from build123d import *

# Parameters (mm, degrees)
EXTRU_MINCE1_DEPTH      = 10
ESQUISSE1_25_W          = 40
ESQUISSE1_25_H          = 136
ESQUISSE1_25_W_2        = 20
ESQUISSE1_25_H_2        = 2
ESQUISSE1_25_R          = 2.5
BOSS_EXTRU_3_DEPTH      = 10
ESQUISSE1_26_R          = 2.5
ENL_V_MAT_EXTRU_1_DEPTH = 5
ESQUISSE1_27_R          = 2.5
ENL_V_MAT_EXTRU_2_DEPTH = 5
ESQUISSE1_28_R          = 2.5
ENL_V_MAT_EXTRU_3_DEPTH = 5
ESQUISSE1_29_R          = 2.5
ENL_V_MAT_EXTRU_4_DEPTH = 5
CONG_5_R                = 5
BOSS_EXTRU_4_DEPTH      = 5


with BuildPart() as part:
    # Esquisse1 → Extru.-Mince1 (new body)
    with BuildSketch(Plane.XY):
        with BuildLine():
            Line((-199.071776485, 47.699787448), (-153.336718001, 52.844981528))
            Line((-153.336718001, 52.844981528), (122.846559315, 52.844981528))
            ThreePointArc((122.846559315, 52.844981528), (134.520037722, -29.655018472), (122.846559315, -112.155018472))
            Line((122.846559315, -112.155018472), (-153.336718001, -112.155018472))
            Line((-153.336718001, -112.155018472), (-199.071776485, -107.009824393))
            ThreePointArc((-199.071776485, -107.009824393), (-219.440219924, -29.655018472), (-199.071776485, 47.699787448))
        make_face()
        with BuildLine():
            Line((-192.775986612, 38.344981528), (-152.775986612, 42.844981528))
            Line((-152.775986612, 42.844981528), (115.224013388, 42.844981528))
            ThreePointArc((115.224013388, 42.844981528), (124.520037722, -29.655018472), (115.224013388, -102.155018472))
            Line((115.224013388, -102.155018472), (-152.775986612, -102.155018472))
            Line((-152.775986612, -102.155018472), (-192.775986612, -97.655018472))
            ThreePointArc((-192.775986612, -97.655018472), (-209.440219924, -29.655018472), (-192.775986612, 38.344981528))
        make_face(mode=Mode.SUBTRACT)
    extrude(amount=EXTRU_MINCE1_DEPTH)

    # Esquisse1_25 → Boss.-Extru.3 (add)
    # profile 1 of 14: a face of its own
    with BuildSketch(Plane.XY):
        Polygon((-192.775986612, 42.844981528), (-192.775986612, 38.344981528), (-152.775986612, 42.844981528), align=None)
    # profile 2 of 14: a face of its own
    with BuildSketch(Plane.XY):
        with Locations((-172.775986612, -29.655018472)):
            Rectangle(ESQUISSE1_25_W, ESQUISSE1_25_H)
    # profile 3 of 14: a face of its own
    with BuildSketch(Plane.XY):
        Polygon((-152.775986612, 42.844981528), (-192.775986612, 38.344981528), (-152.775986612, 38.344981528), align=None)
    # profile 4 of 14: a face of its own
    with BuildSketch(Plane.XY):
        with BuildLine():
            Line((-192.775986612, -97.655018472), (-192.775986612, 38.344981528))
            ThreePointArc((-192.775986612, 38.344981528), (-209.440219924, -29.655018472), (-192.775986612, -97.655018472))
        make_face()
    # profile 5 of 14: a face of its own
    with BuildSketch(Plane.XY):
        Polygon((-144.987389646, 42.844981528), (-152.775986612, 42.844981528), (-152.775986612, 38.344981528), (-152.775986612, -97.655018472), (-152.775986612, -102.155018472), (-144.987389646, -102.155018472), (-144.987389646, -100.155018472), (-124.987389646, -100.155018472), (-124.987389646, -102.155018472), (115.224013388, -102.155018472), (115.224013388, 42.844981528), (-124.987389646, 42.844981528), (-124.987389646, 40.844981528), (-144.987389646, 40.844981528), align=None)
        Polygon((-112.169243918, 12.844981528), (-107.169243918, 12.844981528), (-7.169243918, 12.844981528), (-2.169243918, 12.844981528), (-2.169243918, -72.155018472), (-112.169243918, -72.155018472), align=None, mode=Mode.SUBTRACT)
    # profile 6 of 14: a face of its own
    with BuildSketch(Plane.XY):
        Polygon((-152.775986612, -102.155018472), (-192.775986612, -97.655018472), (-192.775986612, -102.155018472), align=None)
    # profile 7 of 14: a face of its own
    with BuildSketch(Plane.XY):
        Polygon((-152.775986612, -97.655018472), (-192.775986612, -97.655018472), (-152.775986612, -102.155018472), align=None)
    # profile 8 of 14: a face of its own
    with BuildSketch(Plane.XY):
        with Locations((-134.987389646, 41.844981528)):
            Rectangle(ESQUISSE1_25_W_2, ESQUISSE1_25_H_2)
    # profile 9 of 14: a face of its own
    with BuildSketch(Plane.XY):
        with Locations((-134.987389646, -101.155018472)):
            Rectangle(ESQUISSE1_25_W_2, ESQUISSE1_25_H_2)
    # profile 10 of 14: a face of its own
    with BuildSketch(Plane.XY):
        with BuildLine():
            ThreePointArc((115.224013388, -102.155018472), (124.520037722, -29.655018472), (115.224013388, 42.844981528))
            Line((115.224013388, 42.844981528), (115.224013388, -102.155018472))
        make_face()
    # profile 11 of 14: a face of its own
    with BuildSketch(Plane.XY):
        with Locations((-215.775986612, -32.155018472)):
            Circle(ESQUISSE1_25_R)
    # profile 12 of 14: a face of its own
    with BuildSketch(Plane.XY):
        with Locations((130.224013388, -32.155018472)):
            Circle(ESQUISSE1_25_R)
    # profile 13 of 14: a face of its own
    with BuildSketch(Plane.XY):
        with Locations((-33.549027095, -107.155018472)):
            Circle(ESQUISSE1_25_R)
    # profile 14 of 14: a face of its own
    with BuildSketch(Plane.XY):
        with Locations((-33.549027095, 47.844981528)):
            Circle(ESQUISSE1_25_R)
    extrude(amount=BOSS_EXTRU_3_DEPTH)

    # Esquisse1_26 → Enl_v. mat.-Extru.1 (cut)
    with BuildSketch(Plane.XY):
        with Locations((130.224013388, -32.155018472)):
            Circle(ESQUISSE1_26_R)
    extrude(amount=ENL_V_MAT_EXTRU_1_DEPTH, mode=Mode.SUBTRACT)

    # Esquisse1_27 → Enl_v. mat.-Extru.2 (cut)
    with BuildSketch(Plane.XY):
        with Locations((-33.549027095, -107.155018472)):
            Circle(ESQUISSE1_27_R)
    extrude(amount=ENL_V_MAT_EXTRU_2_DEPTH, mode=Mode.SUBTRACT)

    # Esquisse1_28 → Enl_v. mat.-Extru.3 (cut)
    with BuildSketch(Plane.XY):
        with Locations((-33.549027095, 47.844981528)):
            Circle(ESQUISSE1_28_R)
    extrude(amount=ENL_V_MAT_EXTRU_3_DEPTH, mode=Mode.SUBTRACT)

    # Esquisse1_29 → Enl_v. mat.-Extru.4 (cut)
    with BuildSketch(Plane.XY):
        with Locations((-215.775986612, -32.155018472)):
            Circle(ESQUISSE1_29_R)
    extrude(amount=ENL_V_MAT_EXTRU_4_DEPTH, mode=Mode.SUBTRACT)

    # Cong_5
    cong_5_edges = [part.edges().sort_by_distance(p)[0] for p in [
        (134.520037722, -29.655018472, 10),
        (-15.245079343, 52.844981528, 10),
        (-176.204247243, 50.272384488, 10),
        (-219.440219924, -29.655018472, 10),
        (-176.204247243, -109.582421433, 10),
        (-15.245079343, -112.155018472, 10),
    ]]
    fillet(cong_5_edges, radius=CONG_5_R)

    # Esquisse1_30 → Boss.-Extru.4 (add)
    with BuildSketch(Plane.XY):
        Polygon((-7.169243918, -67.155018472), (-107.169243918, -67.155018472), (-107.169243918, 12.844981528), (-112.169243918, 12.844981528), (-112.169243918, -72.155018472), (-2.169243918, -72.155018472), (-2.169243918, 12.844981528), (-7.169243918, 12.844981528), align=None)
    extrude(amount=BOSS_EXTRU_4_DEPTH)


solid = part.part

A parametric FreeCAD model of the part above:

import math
import FreeCAD as App
import Part
import Sketcher


def edges_at(feature, points):
    """Names of the edges that pass closest to the given points."""
    edges = feature.Shape.Edges
    near = lambda p: min(range(len(edges)), key=lambda i: edges[i].distToShape(Part.Vertex(*p))[0])
    return sorted({f"Edge{near(p) + 1}" for p in points})


def add_polygon(sketch, points):
    """Adds a closed chain of lines whose ends are joined by coincident constraints."""
    first, n = sketch.GeometryCount, len(points)
    for a, b in zip(points, points[1:] + points[:1]):
        sketch.addGeometry(Part.LineSegment(App.Vector(*a, 0), App.Vector(*b, 0)), False)
    for i in range(n):
        sketch.addConstraint(Sketcher.Constraint("Coincident", first + i, 2, first + (i + 1) % n, 1))

doc = App.newDocument("Part")
params = doc.addObject("Spreadsheet::Sheet", "Params")
for row, (alias, value) in enumerate([
    ("sketch1_width", "268 mm"),
    ("pad1_length", "10 mm"),
    ("sketch2_diameter", "5 mm"),
    ("sketch2_width", "308 mm"),
    ("sketch2_width2", "110 mm"),
    ("sketch2_height", "85 mm"),
    ("sketch2_height2", "4.5 mm"),
    ("pad2_length", "10 mm"),
    ("sketch3_diameter", "5 mm"),
    ("pocket1_length", "5 mm"),
    ("sketch4_diameter", "5 mm"),
    ("pocket2_length", "5 mm"),
    ("sketch5_diameter", "5 mm"),
    ("pocket3_length", "5 mm"),
    ("sketch6_diameter", "5 mm"),
    ("pocket4_length", "5 mm"),
    ("fillet_radius", "5 mm"),
    ("sketch7_width", "100 mm"),
    ("sketch7_width2", "5 mm"),
    ("sketch7_height", "80 mm"),
    ("sketch7_height2", "85 mm"),
    ("pad3_length", "5 mm"),
], start=1):
    params.set(f"A{row}", alias)
    params.set(f"B{row}", "=" + value)
    params.setAlias(f"B{row}", alias)

body = doc.addObject("PartDesign::Body", "Body")

sketch1 = body.newObject("Sketcher::SketchObject", "Sketch")
sketch1.AttachmentSupport = (doc.getObject("XY_Plane"), [""])
sketch1.MapMode = "FlatFace"
sketch1.addGeometry(Part.LineSegment(App.Vector(-153, 53, 0), App.Vector(-199, 48, 0)), False)
sketch1.addGeometry(Part.ArcOfCircle(Part.Circle(App.Vector(-62, -30, 0), App.Vector(0, 0, 1), 157), math.radians(150), math.radians(210)), False)
sketch1.addGeometry(Part.LineSegment(App.Vector(-199, -107, 0), App.Vector(-153, -112, 0)), False)
sketch1.addGeometry(Part.LineSegment(App.Vector(-153, -112, 0), App.Vector(123, -112, 0)), False)
sketch1.addGeometry(Part.ArcOfCircle(Part.Circle(App.Vector(-163, -30, 0), App.Vector(0, 0, 1), 297), math.radians(-16), math.radians(16)), False)
sketch1.addGeometry(Part.LineSegment(App.Vector(123, 53, 0), App.Vector(-153, 53, 0)), False)
sketch1.addGeometry(Part.LineSegment(App.Vector(-193, 38, 0), App.Vector(-153, 43, 0)), False)
sketch1.addGeometry(Part.LineSegment(App.Vector(-153, 43, 0), App.Vector(115, 43, 0)), False)
sketch1.addGeometry(Part.ArcOfCircle(Part.Circle(App.Vector(-163, -30, 0), App.Vector(0, 0, 1), 287), math.radians(-15), math.radians(15)), False)
sketch1.addGeometry(Part.LineSegment(App.Vector(115, -102, 0), App.Vector(-153, -102, 0)), False)
sketch1.addGeometry(Part.LineSegment(App.Vector(-153, -102, 0), App.Vector(-193, -98, 0)), False)
sketch1.addGeometry(Part.ArcOfCircle(Part.Circle(App.Vector(-62, -30, 0), App.Vector(0, 0, 1), 147), math.radians(152), math.radians(208)), False)
sketch1.addConstraint(Sketcher.Constraint("Coincident", 0, 2, 1, 1))
sketch1.addConstraint(Sketcher.Constraint("Coincident", 1, 2, 2, 1))
sketch1.addConstraint(Sketcher.Constraint("Coincident", 2, 2, 3, 1))
sketch1.addConstraint(Sketcher.Constraint("Coincident", 3, 2, 4, 1))
sketch1.addConstraint(Sketcher.Constraint("Coincident", 4, 2, 5, 1))
sketch1.addConstraint(Sketcher.Constraint("Coincident", 5, 2, 0, 1))
sketch1.addConstraint(Sketcher.Constraint("Coincident", 6, 2, 7, 1))
sketch1.addConstraint(Sketcher.Constraint("Coincident", 7, 2, 8, 2))
sketch1.addConstraint(Sketcher.Constraint("Coincident", 8, 1, 9, 1))
sketch1.addConstraint(Sketcher.Constraint("Coincident", 9, 2, 10, 1))
sketch1.addConstraint(Sketcher.Constraint("Coincident", 10, 2, 11, 2))
sketch1.addConstraint(Sketcher.Constraint("Coincident", 11, 1, 6, 1))
sketch1.addConstraint(Sketcher.Constraint("Horizontal", 3))
sketch1.addConstraint(Sketcher.Constraint("Horizontal", 5))
sketch1.addConstraint(Sketcher.Constraint("Horizontal", 7))
sketch1.addConstraint(Sketcher.Constraint("Horizontal", 9))
sketch1.addConstraint(Sketcher.Constraint("Coincident", 8, 3, 4, 3))
sketch1.addConstraint(Sketcher.Constraint("Coincident", 11, 3, 1, 3))
sketch1.addConstraint(Sketcher.Constraint("Parallel", 0, 6))
sketch1.addConstraint(Sketcher.Constraint("Parallel", 2, 10))
sketch1.addConstraint(Sketcher.Constraint("Horizontal", 1, 3, 4, 3))
sketch1.addConstraint(Sketcher.Constraint("Vertical", 0, 2, 1, 2))
sketch1.addConstraint(Sketcher.Constraint("Vertical", 3, 2, 4, 2))
sketch1.addConstraint(Sketcher.Constraint("Vertical", 2, 2, 5, 2))
sketch1.addConstraint(Sketcher.Constraint("Vertical", 7, 2, 8, 1))
sketch1.addConstraint(Sketcher.Constraint("Vertical", 6, 2, 9, 2))
sketch1.addConstraint(Sketcher.Constraint("DistanceX", 7, 1, 7, 2, 268.0))
sketch1.addConstraint(Sketcher.Constraint("DistanceY", 3, 2, 4, 2, 165.0))
sketch1.addConstraint(Sketcher.Constraint("DistanceY", 6, 2, 5, 2, 10.0))
sketch1.addConstraint(Sketcher.Constraint("DistanceX", 10, 2, 9, 2, 40.0))
sketch1.addConstraint(Sketcher.Constraint("DistanceY", 10, 2, 8, 3, 68.0))
sketch1.addConstraint(Sketcher.Constraint("Radius", 1, 157.072373))
sketch1.addConstraint(Sketcher.Constraint("Radius", 4, 297.362956))
sketch1.addConstraint(Sketcher.Constraint("Radius", 8, 287.362956))
sketch1.addConstraint(Sketcher.Constraint("Radius", 11, 147.072373))
sketch1.addConstraint(Sketcher.Constraint("DistanceX", 4, 3, 2, 2, 9.506201))
sketch1.addConstraint(Sketcher.Constraint("DistanceY", 1, 3, -1, 1, 29.655018))
sketch1.addConstraint(Sketcher.Constraint("DistanceX", 4, 3, -1, 1, 162.842919))
sketch1.setExpression("Constraints[26]", "Params.sketch1_width")
pad1 = body.newObject("PartDesign::Pad", "Pad")
pad1.Profile = sketch1
pad1.setExpression("Length", "Params.pad1_length")

sketch2 = body.newObject("Sketcher::SketchObject", "Sketch001")
sketch2.AttachmentSupport = (doc.getObject("XY_Plane"), [""])
sketch2.MapMode = "FlatFace"
sketch2.addGeometry(Part.LineSegment(App.Vector(-192.8, 42.8, 0), App.Vector(-192.8, 38.3, 0)), False)
sketch2.addGeometry(Part.ArcOfCircle(Part.Circle(App.Vector(-62.4, -29.7, 0), App.Vector(0, 0, 1), 147.1), math.radians(152), math.radians(208)), False)
sketch2.addGeometry(Part.LineSegment(App.Vector(-192.8, -97.7, 0), App.Vector(-192.8, -102.2, 0)), False)
sketch2.addGeometry(Part.LineSegment(App.Vector(-192.8, -102.2, 0), App.Vector(115.2, -102.2, 0)), False)
sketch2.addGeometry(Part.ArcOfCircle(Part.Circle(App.Vector(-162.8, -29.7, 0), App.Vector(0, 0, 1), 287.4), math.radians(-15), math.radians(15)), False)
sketch2.addGeometry(Part.LineSegment(App.Vector(115.2, 42.8, 0), App.Vector(-192.8, 42.8, 0)), False)
add_polygon(sketch2, [(-2.2, -72.2), (-112.2, -72.2), (-112.2, 12.8), (-2.2, 12.8)])
sketch2.addGeometry(Part.Circle(App.Vector(-215.8, -32.2, 0), App.Vector(0, 0, 1), 2.5), False)
sketch2.addGeometry(Part.Circle(App.Vector(130.2, -32.2, 0), App.Vector(0, 0, 1), 2.5), False)
sketch2.addGeometry(Part.Circle(App.Vector(-33.5, -107.2, 0), App.Vector(0, 0, 1), 2.5), False)
sketch2.addGeometry(Part.Circle(App.Vector(-33.5, 47.8, 0), App.Vector(0, 0, 1), 2.5), False)
sketch2.addConstraint(Sketcher.Constraint("Coincident", 0, 2, 1, 1))
sketch2.addConstraint(Sketcher.Constraint("Coincident", 1, 2, 2, 1))
sketch2.addConstraint(Sketcher.Constraint("Coincident", 2, 2, 3, 1))
sketch2.addConstraint(Sketcher.Constraint("Coincident", 3, 2, 4, 1))
sketch2.addConstraint(Sketcher.Constraint("Coincident", 4, 2, 5, 1))
sketch2.addConstraint(Sketcher.Constraint("Coincident", 5, 2, 0, 1))
sketch2.addConstraint(Sketcher.Constraint("Vertical", 0))
sketch2.addConstraint(Sketcher.Constraint("Vertical", 2))
sketch2.addConstraint(Sketcher.Constraint("Horizontal", 3))
sketch2.addConstraint(Sketcher.Constraint("Horizontal", 5))
sketch2.addConstraint(Sketcher.Constraint("Horizontal", 6))
sketch2.addConstraint(Sketcher.Constraint("Vertical", 7))
sketch2.addConstraint(Sketcher.Constraint("Horizontal", 8))
sketch2.addConstraint(Sketcher.Constraint("Vertical", 9))
sketch2.addConstraint(Sketcher.Constraint("Equal", 10, 11))
sketch2.addConstraint(Sketcher.Constraint("Equal", 11, 12))
sketch2.addConstraint(Sketcher.Constraint("Equal", 12, 13))
sketch2.addConstraint(Sketcher.Constraint("Horizontal", 1, 3, 4, 3))
sketch2.addConstraint(Sketcher.Constraint("Horizontal", 10, 3, 11, 3))
sketch2.addConstraint(Sketcher.Constraint("Vertical", 12, 3, 13, 3))
sketch2.addConstraint(Sketcher.Constraint("Vertical", 0, 2, 1, 2))
sketch2.addConstraint(Sketcher.Constraint("Vertical", 3, 2, 4, 2))
sketch2.addConstraint(Sketcher.Constraint("Diameter", 10, 5.0))
sketch2.addConstraint(Sketcher.Constraint("DistanceX", 3, 1, 3, 2, 308.0))
sketch2.addConstraint(Sketcher.Constraint("DistanceX", 6, 2, 6, 1, 110.0))
sketch2.addConstraint(Sketcher.Constraint("DistanceY", 7, 1, 7, 2, 85.0))
sketch2.addConstraint(Sketcher.Constraint("DistanceY", 0, 2, 0, 1, 4.5))
sketch2.addConstraint(Sketcher.Constraint("DistanceX", 10, 3, 11, 3, 346.0))
sketch2.addConstraint(Sketcher.Constraint("DistanceY", 12, 3, 11, 3, 75.0))
sketch2.addConstraint(Sketcher.Constraint("DistanceY", 12, 3, 13, 3, 155.0))
sketch2.addConstraint(Sketcher.Constraint("DistanceX", 10, 3, 0, 2, 23.0))
sketch2.addConstraint(Sketcher.Constraint("DistanceY", 4, 3, 0, 2, 68.0))
sketch2.addConstraint(Sketcher.Constraint("DistanceY", 2, 2, 10, 3, 70.0))
sketch2.addConstraint(Sketcher.Constraint("DistanceY", 2, 2, 6, 2, 30.0))
sketch2.addConstraint(Sketcher.Constraint("Radius", 1, 147.072373))
sketch2.addConstraint(Sketcher.Constraint("Radius", 4, 287.362956))
sketch2.addConstraint(Sketcher.Constraint("DistanceY", 1, 3, -1, 1, 29.655018))
sketch2.addConstraint(Sketcher.Constraint("DistanceX", 4, 3, -1, 1, 162.842919))
sketch2.addConstraint(Sketcher.Constraint("DistanceX", 1, 3, 12, 3, 28.81882))
sketch2.addConstraint(Sketcher.Constraint("DistanceX", 6, 2, -1, 1, 112.169244))
sketch2.setExpression("Constraints[26]", "Params.sketch2_diameter")
sketch2.setExpression("Constraints[27]", "Params.sketch2_width")
sketch2.setExpression("Constraints[28]", "Params.sketch2_width2")
sketch2.setExpression("Constraints[29]", "Params.sketch2_height")
sketch2.setExpression("Constraints[30]", "Params.sketch2_height2")
pad2 = body.newObject("PartDesign::Pad", "Pad001")
pad2.Profile = sketch2
pad2.setExpression("Length", "Params.pad2_length")

sketch3 = body.newObject("Sketcher::SketchObject", "Sketch002")
sketch3.AttachmentSupport = (doc.getObject("XY_Plane"), [""])
sketch3.MapMode = "FlatFace"
sketch3.addGeometry(Part.Circle(App.Vector(130.2, -32.2, 0), App.Vector(0, 0, 1), 2.5), False)
sketch3.addConstraint(Sketcher.Constraint("Diameter", 0, 5.0))
sketch3.addConstraint(Sketcher.Constraint("DistanceY", 0, 3, -1, 1, 32.155018))
sketch3.addConstraint(Sketcher.Constraint("DistanceX", -1, 1, 0, 3, 130.224013))
sketch3.setExpression("Constraints[0]", "Params.sketch3_diameter")
pocket1 = body.newObject("PartDesign::Pocket", "Pocket")
pocket1.Profile = sketch3
pocket1.setExpression("Length", "Params.pocket1_length")
pocket1.Reversed = True

sketch4 = body.newObject("Sketcher::SketchObject", "Sketch003")
sketch4.AttachmentSupport = (doc.getObject("XY_Plane"), [""])
sketch4.MapMode = "FlatFace"
sketch4.addGeometry(Part.Circle(App.Vector(-33.5, -107.2, 0), App.Vector(0, 0, 1), 2.5), False)
sketch4.addConstraint(Sketcher.Constraint("Diameter", 0, 5.0))
sketch4.addConstraint(Sketcher.Constraint("DistanceY", 0, 3, -1, 1, 107.155018))
sketch4.addConstraint(Sketcher.Constraint("DistanceX", 0, 3, -1, 1, 33.549027))
sketch4.setExpression("Constraints[0]", "Params.sketch4_diameter")
pocket2 = body.newObject("PartDesign::Pocket", "Pocket001")
pocket2.Profile = sketch4
pocket2.setExpression("Length", "Params.pocket2_length")
pocket2.Reversed = True

sketch5 = body.newObject("Sketcher::SketchObject", "Sketch004")
sketch5.AttachmentSupport = (doc.getObject("XY_Plane"), [""])
sketch5.MapMode = "FlatFace"
sketch5.addGeometry(Part.Circle(App.Vector(-33.5, 47.8, 0), App.Vector(0, 0, 1), 2.5), False)
sketch5.addConstraint(Sketcher.Constraint("Diameter", 0, 5.0))
sketch5.addConstraint(Sketcher.Constraint("DistanceY", -1, 1, 0, 3, 47.844982))
sketch5.addConstraint(Sketcher.Constraint("DistanceX", 0, 3, -1, 1, 33.549027))
sketch5.setExpression("Constraints[0]", "Params.sketch5_diameter")
pocket3 = body.newObject("PartDesign::Pocket", "Pocket002")
pocket3.Profile = sketch5
pocket3.setExpression("Length", "Params.pocket3_length")
pocket3.Reversed = True

sketch6 = body.newObject("Sketcher::SketchObject", "Sketch005")
sketch6.AttachmentSupport = (doc.getObject("XY_Plane"), [""])
sketch6.MapMode = "FlatFace"
sketch6.addGeometry(Part.Circle(App.Vector(-215.8, -32.2, 0), App.Vector(0, 0, 1), 2.5), False)
sketch6.addConstraint(Sketcher.Constraint("Diameter", 0, 5.0))
sketch6.addConstraint(Sketcher.Constraint("DistanceY", 0, 3, -1, 1, 32.155018))
sketch6.addConstraint(Sketcher.Constraint("DistanceX", 0, 3, -1, 1, 215.775987))
sketch6.setExpression("Constraints[0]", "Params.sketch6_diameter")
pocket4 = body.newObject("PartDesign::Pocket", "Pocket003")
pocket4.Profile = sketch6
pocket4.setExpression("Length", "Params.pocket4_length")
pocket4.Reversed = True
doc.recompute()

fillet = body.newObject("PartDesign::Fillet", "Fillet")
fillet.Base = (pocket4, edges_at(pocket4, [
    (134.52, -29.655, 10),
    (-15.245, 52.845, 10),
    (-176.204, 50.272, 10),
    (-219.44, -29.655, 10),
    (-176.204, -109.582, 10),
    (-15.245, -112.155, 10),
]))
fillet.setExpression("Radius", "Params.fillet_radius")

sketch7 = body.newObject("Sketcher::SketchObject", "Sketch006")
sketch7.AttachmentSupport = (doc.getObject("XY_Plane"), [""])
sketch7.MapMode = "FlatFace"
add_polygon(sketch7, [(-7, -67), (-107, -67), (-107, 13), (-112, 13), (-112, -72), (-2, -72), (-2, 13), (-7, 13)])
sketch7.addConstraint(Sketcher.Constraint("Horizontal", 0))
sketch7.addConstraint(Sketcher.Constraint("Vertical", 1))
sketch7.addConstraint(Sketcher.Constraint("Horizontal", 2))
sketch7.addConstraint(Sketcher.Constraint("Vertical", 3))
sketch7.addConstraint(Sketcher.Constraint("Horizontal", 4))
sketch7.addConstraint(Sketcher.Constraint("Vertical", 5))
sketch7.addConstraint(Sketcher.Constraint("Horizontal", 6))
sketch7.addConstraint(Sketcher.Constraint("Vertical", 7))
sketch7.addConstraint(Sketcher.Constraint("Horizontal", 2, 2, 5, 2))
sketch7.addConstraint(Sketcher.Constraint("Equal", 2, 6))
sketch7.addConstraint(Sketcher.Constraint("DistanceX", 0, 2, 0, 1, 100.0))
sketch7.addConstraint(Sketcher.Constraint("DistanceX", 2, 2, 2, 1, 5.0))
sketch7.addConstraint(Sketcher.Constraint("DistanceY", 1, 1, 1, 2, 80.0))
sketch7.addConstraint(Sketcher.Constraint("DistanceY", 3, 2, 3, 1, 85.0))
sketch7.addConstraint(Sketcher.Constraint("DistanceY", 0, 2, -1, 1, 67.155018))
sketch7.addConstraint(Sketcher.Constraint("DistanceX", 0, 2, -1, 1, 107.169244))
sketch7.setExpression("Constraints[18]", "Params.sketch7_width")
sketch7.setExpression("Constraints[19]", "Params.sketch7_width2")
sketch7.setExpression("Constraints[20]", "Params.sketch7_height")
sketch7.setExpression("Constraints[21]", "Params.sketch7_height2")
pad3 = body.newObject("PartDesign::Pad", "Pad002")
pad3.Profile = sketch7
pad3.setExpression("Length", "Params.pad3_length")

doc.recompute()
